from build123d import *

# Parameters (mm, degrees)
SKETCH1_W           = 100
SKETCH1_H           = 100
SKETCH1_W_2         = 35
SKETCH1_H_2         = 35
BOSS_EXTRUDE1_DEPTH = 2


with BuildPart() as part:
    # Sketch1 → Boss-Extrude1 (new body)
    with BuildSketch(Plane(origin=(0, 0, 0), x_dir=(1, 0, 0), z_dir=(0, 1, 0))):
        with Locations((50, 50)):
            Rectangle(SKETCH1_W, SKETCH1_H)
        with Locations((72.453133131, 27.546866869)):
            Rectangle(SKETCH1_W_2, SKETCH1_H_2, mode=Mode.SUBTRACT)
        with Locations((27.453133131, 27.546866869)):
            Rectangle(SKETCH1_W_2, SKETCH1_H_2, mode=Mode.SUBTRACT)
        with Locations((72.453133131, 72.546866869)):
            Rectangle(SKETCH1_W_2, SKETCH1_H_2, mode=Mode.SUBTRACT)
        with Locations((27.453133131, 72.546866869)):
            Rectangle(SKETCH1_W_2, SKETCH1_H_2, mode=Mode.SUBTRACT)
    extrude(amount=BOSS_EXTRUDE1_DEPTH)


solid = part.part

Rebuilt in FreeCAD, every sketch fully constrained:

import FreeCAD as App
import Part
import Sketcher
Q = App.Units.Quantity

doc = App.newDocument("Part")
body = doc.addObject("PartDesign::Body", "Body")

# Sketch on XZ plane
sketch1 = body.newObject("Sketcher::SketchObject", "Sketch")
sketch1.AttachmentSupport = (doc.getObject("XZ_Plane"), [""])
sketch1.MapMode = "FlatFace"
sketch1.addGeometry([
    Part.LineSegment(App.Vector(0, -100, 0), App.Vector(0, 0, 0)),  # 0
    Part.LineSegment(App.Vector(0, 0, 0), App.Vector(100, 0, 0)),  # 1
    Part.LineSegment(App.Vector(100, 0, 0), App.Vector(100, -100, 0)),  # 2
    Part.LineSegment(App.Vector(100, -100, 0), App.Vector(0, -100, 0)),  # 3
    Part.LineSegment(App.Vector(44.953133, -10.046867, 0), App.Vector(9.953133, -10.046867, 0)),  # 4
    Part.LineSegment(App.Vector(9.953133, -10.046867, 0), App.Vector(9.953133, -45.046867, 0)),  # 5
    Part.LineSegment(App.Vector(9.953133, -45.046867, 0), App.Vector(44.953133, -45.046867, 0)),  # 6
    Part.LineSegment(App.Vector(44.953133, -45.046867, 0), App.Vector(44.953133, -10.046867, 0)),  # 7
    Part.LineSegment(App.Vector(89.953133, -10.046867, 0), App.Vector(54.953133, -10.046867, 0)),  # 8
    Part.LineSegment(App.Vector(54.953133, -10.046867, 0), App.Vector(54.953133, -45.046867, 0)),  # 9
    Part.LineSegment(App.Vector(54.953133, -45.046867, 0), App.Vector(89.953133, -45.046867, 0)),  # 10
    Part.LineSegment(App.Vector(89.953133, -45.046867, 0), App.Vector(89.953133, -10.046867, 0)),  # 11
    Part.LineSegment(App.Vector(44.953133, -55.046867, 0), App.Vector(9.953133, -55.046867, 0)),  # 12
    Part.LineSegment(App.Vector(9.953133, -55.046867, 0), App.Vector(9.953133, -90.046867, 0)),  # 13
    Part.LineSegment(App.Vector(9.953133, -90.046867, 0), App.Vector(44.953133, -90.046867, 0)),  # 14
    Part.LineSegment(App.Vector(44.953133, -90.046867, 0), App.Vector(44.953133, -55.046867, 0)),  # 15
    Part.LineSegment(App.Vector(89.953133, -55.046867, 0), App.Vector(54.953133, -55.046867, 0)),  # 16
    Part.LineSegment(App.Vector(54.953133, -55.046867, 0), App.Vector(54.953133, -90.046867, 0)),  # 17
    Part.LineSegment(App.Vector(54.953133, -90.046867, 0), App.Vector(89.953133, -90.046867, 0)),  # 18
    Part.LineSegment(App.Vector(89.953133, -90.046867, 0), App.Vector(89.953133, -55.046867, 0)),  # 19
], False)
sketch1.addConstraint([
    Sketcher.Constraint("Coincident", 0, 2, 1, 1),
    Sketcher.Constraint("Coincident", 1, 2, 2, 1),
    Sketcher.Constraint("Coincident", 2, 2, 3, 1),
    Sketcher.Constraint("Coincident", 3, 2, 0, 1),
    Sketcher.Constraint("Coincident", 4, 2, 5, 1),
    Sketcher.Constraint("Coincident", 5, 2, 6, 1),
    Sketcher.Constraint("Coincident", 6, 2, 7, 1),
    Sketcher.Constraint("Coincident", 7, 2, 4, 1),
    Sketcher.Constraint("Coincident", 8, 2, 9, 1),
    Sketcher.Constraint("Coincident", 9, 2, 10, 1),
    Sketcher.Constraint("Coincident", 10, 2, 11, 1),
    Sketcher.Constraint("Coincident", 11, 2, 8, 1),
    Sketcher.Constraint("Coincident", 12, 2, 13, 1),
    Sketcher.Constraint("Coincident", 13, 2, 14, 1),
    Sketcher.Constraint("Coincident", 14, 2, 15, 1),
    Sketcher.Constraint("Coincident", 15, 2, 12, 1),
    Sketcher.Constraint("Coincident", 16, 2, 17, 1),
    Sketcher.Constraint("Coincident", 17, 2, 18, 1),
    Sketcher.Constraint("Coincident", 18, 2, 19, 1),
    Sketcher.Constraint("Coincident", 19, 2, 16, 1),
    Sketcher.Constraint("Vertical", 0),
    Sketcher.Constraint("Horizontal", 1),
    Sketcher.Constraint("Vertical", 2),
    Sketcher.Constraint("Horizontal", 3),
    Sketcher.Constraint("Horizontal", 4),
    Sketcher.Constraint("Vertical", 5),
    Sketcher.Constraint("Horizontal", 6),
    Sketcher.Constraint("Vertical", 7),
    Sketcher.Constraint("Horizontal", 8),
    Sketcher.Constraint("Vertical", 9),
    Sketcher.Constraint("Horizontal", 10),
    Sketcher.Constraint("Vertical", 11),
    Sketcher.Constraint("Horizontal", 12),
    Sketcher.Constraint("Vertical", 13),
    Sketcher.Constraint("Horizontal", 14),
    Sketcher.Constraint("Vertical", 15),
    Sketcher.Constraint("Horizontal", 16),
    Sketcher.Constraint("Vertical", 17),
    Sketcher.Constraint("Horizontal", 18),
    Sketcher.Constraint("Vertical", 19),
    Sketcher.Constraint("Coincident", 0, 2, -1, 1),
    Sketcher.Constraint("Horizontal", 7, 2, 8, 2),
    Sketcher.Constraint("Horizontal", 6, 2, 9, 2),
    Sketcher.Constraint("Horizontal", 15, 2, 16, 2),
    Sketcher.Constraint("Horizontal", 14, 2, 17, 2),
    Sketcher.Constraint("Vertical", 5, 2, 12, 2),
    Sketcher.Constraint("Vertical", 7, 2, 14, 2),
    Sketcher.Constraint("Vertical", 9, 2, 16, 2),
    Sketcher.Constraint("Vertical", 11, 2, 18, 2),
    Sketcher.Constraint("Equal", 6, 8),
    Sketcher.Constraint("Equal", 3, 0),
    Sketcher.Constraint("Equal", 18, 5),
    Sketcher.Constraint("Equal", 11, 13),
    Sketcher.Constraint("DistanceX", 1, 1, 1, 2, Q("100 mm")),
    Sketcher.Constraint("DistanceX", 4, 2, 4, 1, Q("35 mm")),
    Sketcher.Constraint("DistanceX", 7, 2, 8, 2, Q("10 mm")),
    Sketcher.Constraint("DistanceY", 12, 2, 5, 2, Q("10 mm")),
    Sketcher.Constraint("DistanceX", -1, 1, 4, 2, Q("9.953133 mm")),
    Sketcher.Constraint("DistanceY", 4, 2, -1, 1, Q("10.046867 mm")),
])
pad1 = body.newObject("PartDesign::Pad", "Pad")
pad1.Profile = sketch1
pad1.Length = 2
pad1.Reversed = True

doc.recompute()
